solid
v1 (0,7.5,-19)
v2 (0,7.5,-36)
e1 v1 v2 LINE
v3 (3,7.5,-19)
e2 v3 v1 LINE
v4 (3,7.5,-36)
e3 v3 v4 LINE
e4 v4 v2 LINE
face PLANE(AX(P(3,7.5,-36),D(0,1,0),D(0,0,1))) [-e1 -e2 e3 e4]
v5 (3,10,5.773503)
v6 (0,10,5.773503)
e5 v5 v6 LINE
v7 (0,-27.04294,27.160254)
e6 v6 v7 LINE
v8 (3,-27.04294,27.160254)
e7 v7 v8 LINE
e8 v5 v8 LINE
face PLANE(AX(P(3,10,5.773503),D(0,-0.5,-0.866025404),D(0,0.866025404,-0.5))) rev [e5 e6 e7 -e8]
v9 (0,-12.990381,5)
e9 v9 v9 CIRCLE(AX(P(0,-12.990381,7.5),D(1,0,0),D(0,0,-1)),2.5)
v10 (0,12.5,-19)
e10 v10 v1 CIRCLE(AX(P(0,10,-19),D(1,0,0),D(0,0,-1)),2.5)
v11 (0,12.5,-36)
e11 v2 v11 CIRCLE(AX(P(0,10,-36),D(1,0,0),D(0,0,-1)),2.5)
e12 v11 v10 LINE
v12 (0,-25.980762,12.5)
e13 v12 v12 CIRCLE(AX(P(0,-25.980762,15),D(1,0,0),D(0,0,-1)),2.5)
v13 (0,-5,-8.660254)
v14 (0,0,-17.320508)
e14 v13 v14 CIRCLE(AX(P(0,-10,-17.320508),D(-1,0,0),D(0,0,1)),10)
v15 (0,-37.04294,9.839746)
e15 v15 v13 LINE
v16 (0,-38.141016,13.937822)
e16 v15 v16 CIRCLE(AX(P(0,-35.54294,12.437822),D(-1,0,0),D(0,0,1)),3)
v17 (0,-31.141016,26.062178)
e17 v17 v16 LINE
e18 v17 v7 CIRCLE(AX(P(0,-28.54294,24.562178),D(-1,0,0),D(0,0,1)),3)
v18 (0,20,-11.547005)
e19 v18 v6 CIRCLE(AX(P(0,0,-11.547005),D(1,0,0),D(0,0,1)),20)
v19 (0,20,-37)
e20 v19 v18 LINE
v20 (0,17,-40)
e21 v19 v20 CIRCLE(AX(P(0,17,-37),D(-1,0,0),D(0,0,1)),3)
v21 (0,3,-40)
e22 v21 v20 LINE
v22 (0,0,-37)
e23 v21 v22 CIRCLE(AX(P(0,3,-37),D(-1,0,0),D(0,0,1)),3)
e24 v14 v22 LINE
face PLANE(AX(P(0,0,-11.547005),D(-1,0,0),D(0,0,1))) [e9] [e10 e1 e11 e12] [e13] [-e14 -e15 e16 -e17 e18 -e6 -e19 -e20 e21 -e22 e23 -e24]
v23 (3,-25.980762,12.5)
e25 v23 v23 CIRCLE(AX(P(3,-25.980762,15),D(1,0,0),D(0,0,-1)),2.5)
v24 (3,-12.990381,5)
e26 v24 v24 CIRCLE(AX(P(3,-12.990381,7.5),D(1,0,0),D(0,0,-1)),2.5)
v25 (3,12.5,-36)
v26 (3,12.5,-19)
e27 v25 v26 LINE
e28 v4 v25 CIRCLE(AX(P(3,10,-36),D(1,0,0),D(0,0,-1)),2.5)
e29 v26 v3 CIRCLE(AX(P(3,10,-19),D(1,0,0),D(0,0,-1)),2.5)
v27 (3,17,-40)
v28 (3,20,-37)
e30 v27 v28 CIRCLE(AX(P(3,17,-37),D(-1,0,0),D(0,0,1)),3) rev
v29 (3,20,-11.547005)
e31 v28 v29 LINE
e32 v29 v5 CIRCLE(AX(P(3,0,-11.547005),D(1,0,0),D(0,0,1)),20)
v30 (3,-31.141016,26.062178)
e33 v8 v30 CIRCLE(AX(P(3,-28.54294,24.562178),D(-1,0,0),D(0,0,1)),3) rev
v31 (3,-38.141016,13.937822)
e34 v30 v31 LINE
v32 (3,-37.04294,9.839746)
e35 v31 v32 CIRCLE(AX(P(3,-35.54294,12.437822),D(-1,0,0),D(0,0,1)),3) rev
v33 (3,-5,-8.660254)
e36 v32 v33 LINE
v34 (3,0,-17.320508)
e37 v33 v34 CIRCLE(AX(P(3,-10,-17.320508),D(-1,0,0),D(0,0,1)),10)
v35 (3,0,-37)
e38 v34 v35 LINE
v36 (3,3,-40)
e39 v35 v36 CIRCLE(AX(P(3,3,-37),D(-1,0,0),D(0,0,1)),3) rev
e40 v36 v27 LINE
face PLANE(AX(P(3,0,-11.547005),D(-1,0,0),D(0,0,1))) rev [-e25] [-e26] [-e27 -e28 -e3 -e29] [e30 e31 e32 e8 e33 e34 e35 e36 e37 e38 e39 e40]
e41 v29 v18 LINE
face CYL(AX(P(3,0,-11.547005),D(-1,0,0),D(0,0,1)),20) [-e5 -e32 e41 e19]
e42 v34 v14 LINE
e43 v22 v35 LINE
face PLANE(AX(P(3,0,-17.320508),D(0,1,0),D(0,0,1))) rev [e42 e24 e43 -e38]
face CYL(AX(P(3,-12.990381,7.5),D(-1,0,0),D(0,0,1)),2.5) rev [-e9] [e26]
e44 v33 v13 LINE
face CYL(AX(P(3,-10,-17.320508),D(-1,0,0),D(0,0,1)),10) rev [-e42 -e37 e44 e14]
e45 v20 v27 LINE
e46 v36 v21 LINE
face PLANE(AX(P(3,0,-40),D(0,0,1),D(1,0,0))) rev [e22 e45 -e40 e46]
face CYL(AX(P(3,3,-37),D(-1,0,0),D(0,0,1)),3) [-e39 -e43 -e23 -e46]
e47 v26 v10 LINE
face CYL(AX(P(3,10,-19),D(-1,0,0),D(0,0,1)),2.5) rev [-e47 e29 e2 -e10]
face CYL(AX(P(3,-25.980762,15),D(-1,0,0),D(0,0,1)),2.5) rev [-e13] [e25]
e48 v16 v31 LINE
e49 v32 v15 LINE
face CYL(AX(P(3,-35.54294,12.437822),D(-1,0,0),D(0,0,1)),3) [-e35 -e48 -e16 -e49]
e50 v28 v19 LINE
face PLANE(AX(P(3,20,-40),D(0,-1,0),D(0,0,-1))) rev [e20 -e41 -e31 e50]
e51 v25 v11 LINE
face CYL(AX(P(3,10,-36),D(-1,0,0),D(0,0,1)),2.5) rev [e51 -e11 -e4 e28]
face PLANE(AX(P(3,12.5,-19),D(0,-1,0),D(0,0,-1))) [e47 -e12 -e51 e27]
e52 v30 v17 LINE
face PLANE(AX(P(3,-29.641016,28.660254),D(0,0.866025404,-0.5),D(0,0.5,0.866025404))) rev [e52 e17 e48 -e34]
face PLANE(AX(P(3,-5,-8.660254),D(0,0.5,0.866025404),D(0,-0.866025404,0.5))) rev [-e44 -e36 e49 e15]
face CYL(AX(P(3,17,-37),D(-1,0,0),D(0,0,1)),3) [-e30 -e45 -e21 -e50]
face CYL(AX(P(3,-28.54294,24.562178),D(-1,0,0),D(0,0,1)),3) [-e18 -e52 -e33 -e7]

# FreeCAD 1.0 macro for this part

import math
import FreeCAD as App
import Part
import Sketcher
from FreeCAD import Vector
Q = App.Units.Quantity


def edges_at(feature, points):
    """Names of the edges that pass closest to the given points."""
    edges = feature.Shape.Edges
    near = lambda p: min(range(len(edges)), key=lambda i: edges[i].distToShape(Part.Vertex(*p))[0])
    return sorted({f"Edge{near(p) + 1}" for p in points})

doc = App.newDocument("Part")
params = doc.addObject("Spreadsheet::Sheet", "Params")
for row, (alias, value) in enumerate([
    ("sketch1_diameter", "5 mm"),
    ("sketch1_radius", "20 mm"),
    ("sketch1_radius2", "10 mm"),
    ("sketch1_height", "17 mm"),
    ("sketch1_length", "20 mm"),
    ("pad1_length", "3 mm"),
    ("fillet_radius", "3 mm"),
], start=1):
    params.set(f"A{row}", alias)
    params.set(f"B{row}", "=" + value)
    params.setAlias(f"B{row}", alias)

body = doc.addObject("PartDesign::Body", "Body")

# Sketch on YZ plane
sketch1 = body.newObject("Sketcher::SketchObject", "Sketch")
sketch1.AttachmentSupport = (doc.getObject("YZ_Plane"), [""])
sketch1.MapMode = "FlatFace"
sketch1.addGeometry(Part.LineSegment(Vector(0, -17.3, 0), Vector(0, -40, 0)), False)
sketch1.addGeometry(Part.LineSegment(Vector(0, -40, 0), Vector(20, -40, 0)), False)
sketch1.addGeometry(Part.LineSegment(Vector(20, -40, 0), Vector(20, -11.5, 0)), False)
sketch1.addGeometry(Part.ArcOfCircle(Part.Circle(Vector(0, -11.5, 0), Vector(0, 0, 1), 20), math.radians(0), math.radians(60)), False)
sketch1.addGeometry(Part.LineSegment(Vector(10, 5.8, 0), Vector(-29.6, 28.7, 0)), False)
sketch1.addGeometry(Part.LineSegment(Vector(-29.6, 28.7, 0), Vector(-39.6, 11.3, 0)), False)
sketch1.addGeometry(Part.LineSegment(Vector(-39.6, 11.3, 0), Vector(-5, -8.7, 0)), False)
sketch1.addGeometry(Part.ArcOfCircle(Part.Circle(Vector(-10, -17.3, 0), Vector(0, 0, 1), 10), math.radians(0), math.radians(60)), False)
sketch1.addGeometry(Part.Circle(Vector(-26, 15, 0), Vector(0, 0, 1), 2.5), False)
sketch1.addGeometry(Part.Circle(Vector(-13, 7.5, 0), Vector(0, 0, 1), 2.5), False)
sketch1.addGeometry(Part.ArcOfCircle(Part.Circle(Vector(10, -19, 0), Vector(0, 0, 1), 2.5), math.radians(0), math.radians(180)), False)
sketch1.addGeometry(Part.LineSegment(Vector(12.5, -19, 0), Vector(12.5, -36, 0)), False)
sketch1.addGeometry(Part.ArcOfCircle(Part.Circle(Vector(10, -36, 0), Vector(0, 0, 1), 2.5), math.radians(180), math.radians(360)), False)
sketch1.addGeometry(Part.LineSegment(Vector(7.5, -36, 0), Vector(7.5, -19, 0)), False)
sketch1.addConstraint(Sketcher.Constraint("Coincident", 0, 2, 1, 1))
sketch1.addConstraint(Sketcher.Constraint("Coincident", 1, 2, 2, 1))
sketch1.addConstraint(Sketcher.Constraint("Tangent", 2, 2, 3, 1))
sketch1.addConstraint(Sketcher.Constraint("Tangent", 3, 2, 4, 1))
sketch1.addConstraint(Sketcher.Constraint("Coincident", 4, 2, 5, 1))
sketch1.addConstraint(Sketcher.Constraint("Coincident", 5, 2, 6, 1))
sketch1.addConstraint(Sketcher.Constraint("Tangent", 6, 2, 7, 2))
sketch1.addConstraint(Sketcher.Constraint("Tangent", 7, 1, 0, 1))
sketch1.addConstraint(Sketcher.Constraint("Tangent", 10, 1, 11, 1))
sketch1.addConstraint(Sketcher.Constraint("Tangent", 11, 2, 12, 2))
sketch1.addConstraint(Sketcher.Constraint("Tangent", 12, 1, 13, 1))
sketch1.addConstraint(Sketcher.Constraint("Tangent", 13, 2, 10, 2))
sketch1.addConstraint(Sketcher.Constraint("Vertical", 0))
sketch1.addConstraint(Sketcher.Constraint("Horizontal", 1))
sketch1.addConstraint(Sketcher.Constraint("Vertical", 2))
sketch1.addConstraint(Sketcher.Constraint("Vertical", 11))
sketch1.addConstraint(Sketcher.Constraint("Vertical", 13))
sketch1.addConstraint(Sketcher.Constraint("Equal", 8, 9))
sketch1.addConstraint(Sketcher.Constraint("Equal", 9, 10))
sketch1.addConstraint(Sketcher.Constraint("PointOnObject", 3, 3, -2))
sketch1.addConstraint(Sketcher.Constraint("PointOnObject", 0, 2, -2))
sketch1.addConstraint(Sketcher.Constraint("Perpendicular", 4, 5))
sketch1.addConstraint(Sketcher.Constraint("Perpendicular", 5, 6))
sketch1.addConstraint(Sketcher.Constraint("Vertical", 12, 3, 3, 2))
sketch1.addConstraint(Sketcher.Constraint("Diameter", 8, 5.0))
sketch1.addConstraint(Sketcher.Constraint("Radius", 3, 20.0))
sketch1.addConstraint(Sketcher.Constraint("Radius", 7, 10.0))
sketch1.addConstraint(Sketcher.Constraint("DistanceY", 11, 2, 11, 1, 17.0))
sketch1.addConstraint(Sketcher.Constraint("Angle", 4, Q("150 deg")))
sketch1.addConstraint(Sketcher.Constraint("Distance", 5, 20.0))
sketch1.addConstraint(Sketcher.Constraint("Distance", 6, 40.0))
sketch1.addConstraint(Sketcher.Constraint("DistanceY", -1, 1, 8, 3, 15.0))
sketch1.addConstraint(Sketcher.Constraint("DistanceY", 10, 3, -1, 1, 19.0))
sketch1.addConstraint(Sketcher.Constraint("DistanceY", 0, 2, -1, 1, 40.0))
sketch1.addConstraint(Sketcher.Constraint("DistanceY", -1, 1, 9, 3, 7.5))
sketch1.addConstraint(Sketcher.Constraint("DistanceY", 0, 2, 0, 1, 22.679492))
sketch1.addConstraint(Sketcher.Constraint("DistanceX", 9, 3, -1, 1, 12.990381))
sketch1.addConstraint(Sketcher.Constraint("DistanceX", 8, 3, 9, 3, 12.990381))
sketch1.setExpression("Constraints[24]", "Params.sketch1_diameter")
sketch1.setExpression("Constraints[25]", "Params.sketch1_radius")
sketch1.setExpression("Constraints[26]", "Params.sketch1_radius2")
sketch1.setExpression("Constraints[27]", "Params.sketch1_height")
sketch1.setExpression("Constraints[29]", "Params.sketch1_length")
pad1 = body.newObject("PartDesign::Pad", "Pad")
pad1.Profile = sketch1
pad1.setExpression("Length", "Params.pad1_length")
doc.recompute()

fillet = body.newObject("PartDesign::Fillet", "Fillet")
fillet.Base = (pad1, edges_at(pad1, [
    (1.5, 0, -40),
    (1.5, -39.641, 11.34),
    (1.5, -29.641, 28.66),
    (1.5, 20, -40),
]))
fillet.setExpression("Radius", "Params.fillet_radius")

doc.recompute()
